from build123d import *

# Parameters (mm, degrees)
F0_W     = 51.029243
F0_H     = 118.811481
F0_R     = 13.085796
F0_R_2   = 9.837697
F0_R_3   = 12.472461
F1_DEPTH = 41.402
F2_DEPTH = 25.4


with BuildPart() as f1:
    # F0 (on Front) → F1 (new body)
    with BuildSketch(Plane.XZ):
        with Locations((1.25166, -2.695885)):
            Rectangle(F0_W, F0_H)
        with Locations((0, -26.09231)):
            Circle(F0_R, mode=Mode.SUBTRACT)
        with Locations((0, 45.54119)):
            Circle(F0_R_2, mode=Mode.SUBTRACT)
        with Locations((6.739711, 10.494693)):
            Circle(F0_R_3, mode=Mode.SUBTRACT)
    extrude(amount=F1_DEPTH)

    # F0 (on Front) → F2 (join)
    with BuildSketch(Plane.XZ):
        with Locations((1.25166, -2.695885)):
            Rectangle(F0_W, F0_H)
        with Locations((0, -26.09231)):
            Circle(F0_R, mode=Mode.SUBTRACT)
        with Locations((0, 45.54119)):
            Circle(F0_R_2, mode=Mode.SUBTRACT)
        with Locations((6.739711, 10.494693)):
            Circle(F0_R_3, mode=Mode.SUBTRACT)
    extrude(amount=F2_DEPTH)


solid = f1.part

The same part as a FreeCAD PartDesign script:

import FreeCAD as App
import Part
import Sketcher

doc = App.newDocument("Part")
params = doc.addObject("Spreadsheet::Sheet", "Params")
for row, (alias, value) in enumerate([
    ("pad1_length", "1.63 in"),
    ("pad2_length", "1 in"),
], start=1):
    params.set(f"A{row}", alias)
    params.set(f"B{row}", "=" + value)
    params.setAlias(f"B{row}", alias)

body = doc.addObject("PartDesign::Body", "Body")

sketch1 = body.newObject("Sketcher::SketchObject", "Sketch")
sketch1.AttachmentSupport = (doc.getObject("XZ_Plane"), [""])
sketch1.MapMode = "FlatFace"
sketch1.addGeometry([
    Part.LineSegment(App.Vector(-24, 57, 0), App.Vector(-24, -62, 0)),
    Part.LineSegment(App.Vector(-24, -62, 0), App.Vector(27, -62, 0)),
    Part.LineSegment(App.Vector(27, -62, 0), App.Vector(27, 57, 0)),
    Part.LineSegment(App.Vector(27, 57, 0), App.Vector(-24, 57, 0)),
    Part.Circle(App.Vector(0, -26, 0), App.Vector(0, 0, 1), 13),
    Part.Circle(App.Vector(0, 46, 0), App.Vector(0, 0, 1), 10),
    Part.Circle(App.Vector(7, 10, 0), App.Vector(0, 0, 1), 12),
], False)
sketch1.addConstraint([
    Sketcher.Constraint("Coincident", 0, 2, 1, 1),
    Sketcher.Constraint("Coincident", 1, 2, 2, 1),
    Sketcher.Constraint("Coincident", 2, 2, 3, 1),
    Sketcher.Constraint("Coincident", 3, 2, 0, 1),
    Sketcher.Constraint("Vertical", 0),
    Sketcher.Constraint("Horizontal", 1),
    Sketcher.Constraint("Vertical", 2),
    Sketcher.Constraint("Horizontal", 3),
    Sketcher.Constraint("PointOnObject", 4, 3, -2),
    Sketcher.Constraint("PointOnObject", 5, 3, -2),
    Sketcher.Constraint("Diameter", 6, 24.944922),
    Sketcher.Constraint("Diameter", 4, 26.171592),
    Sketcher.Constraint("Diameter", 5, 19.675394),
    Sketcher.Constraint("DistanceY", 0, 2, 0, 1, 118.811481),
    Sketcher.Constraint("DistanceY", 4, 3, 5, 3, 71.6335),
    Sketcher.Constraint("DistanceX", 1, 1, 1, 2, 51.029243),
    Sketcher.Constraint("DistanceY", 4, 3, -1, 1, 26.09231),
    Sketcher.Constraint("DistanceX", -1, 1, 6, 3, 6.739711),
    Sketcher.Constraint("DistanceX", 0, 2, -1, 1, 24.262961),
    Sketcher.Constraint("DistanceY", 0, 2, 6, 3, 72.596318),
    Sketcher.Constraint("DistanceY", -1, 1, 6, 3, 10.494693),
])
pad1 = body.newObject("PartDesign::Pad", "Pad")
pad1.Profile = sketch1
pad1.setExpression("Length", "Params.pad1_length")

sketch2 = body.newObject("Sketcher::SketchObject", "Sketch001")
sketch2.AttachmentSupport = (doc.getObject("XZ_Plane"), [""])
sketch2.MapMode = "FlatFace"
sketch2.addGeometry([
    Part.LineSegment(App.Vector(-24, 57, 0), App.Vector(-24, -62, 0)),
    Part.LineSegment(App.Vector(-24, -62, 0), App.Vector(27, -62, 0)),
    Part.LineSegment(App.Vector(27, -62, 0), App.Vector(27, 57, 0)),
    Part.LineSegment(App.Vector(27, 57, 0), App.Vector(-24, 57, 0)),
    Part.Circle(App.Vector(0, -26, 0), App.Vector(0, 0, 1), 13),
    Part.Circle(App.Vector(0, 46, 0), App.Vector(0, 0, 1), 10),
    Part.Circle(App.Vector(7, 10, 0), App.Vector(0, 0, 1), 12),
], False)
sketch2.addConstraint([
    Sketcher.Constraint("Coincident", 0, 2, 1, 1),
    Sketcher.Constraint("Coincident", 1, 2, 2, 1),
    Sketcher.Constraint("Coincident", 2, 2, 3, 1),
    Sketcher.Constraint("Coincident", 3, 2, 0, 1),
    Sketcher.Constraint("Vertical", 0),
    Sketcher.Constraint("Horizontal", 1),
    Sketcher.Constraint("Vertical", 2),
    Sketcher.Constraint("Horizontal", 3),
    Sketcher.Constraint("PointOnObject", 4, 3, -2),
    Sketcher.Constraint("PointOnObject", 5, 3, -2),
    Sketcher.Constraint("Diameter", 6, 24.944922),
    Sketcher.Constraint("Diameter", 4, 26.171592),
    Sketcher.Constraint("Diameter", 5, 19.675394),
    Sketcher.Constraint("DistanceY", 0, 2, 0, 1, 118.811481),
    Sketcher.Constraint("DistanceY", 4, 3, 5, 3, 71.6335),
    Sketcher.Constraint("DistanceX", 1, 1, 1, 2, 51.029243),
    Sketcher.Constraint("DistanceY", 4, 3, -1, 1, 26.09231),
    Sketcher.Constraint("DistanceX", -1, 1, 6, 3, 6.739711),
    Sketcher.Constraint("DistanceX", 0, 2, -1, 1, 24.262961),
    Sketcher.Constraint("DistanceY", 0, 2, 6, 3, 72.596318),
    Sketcher.Constraint("DistanceY", -1, 1, 6, 3, 10.494693),
])
pad2 = body.newObject("PartDesign::Pad", "Pad001")
pad2.Profile = sketch2
pad2.setExpression("Length", "Params.pad2_length")

doc.recompute()
